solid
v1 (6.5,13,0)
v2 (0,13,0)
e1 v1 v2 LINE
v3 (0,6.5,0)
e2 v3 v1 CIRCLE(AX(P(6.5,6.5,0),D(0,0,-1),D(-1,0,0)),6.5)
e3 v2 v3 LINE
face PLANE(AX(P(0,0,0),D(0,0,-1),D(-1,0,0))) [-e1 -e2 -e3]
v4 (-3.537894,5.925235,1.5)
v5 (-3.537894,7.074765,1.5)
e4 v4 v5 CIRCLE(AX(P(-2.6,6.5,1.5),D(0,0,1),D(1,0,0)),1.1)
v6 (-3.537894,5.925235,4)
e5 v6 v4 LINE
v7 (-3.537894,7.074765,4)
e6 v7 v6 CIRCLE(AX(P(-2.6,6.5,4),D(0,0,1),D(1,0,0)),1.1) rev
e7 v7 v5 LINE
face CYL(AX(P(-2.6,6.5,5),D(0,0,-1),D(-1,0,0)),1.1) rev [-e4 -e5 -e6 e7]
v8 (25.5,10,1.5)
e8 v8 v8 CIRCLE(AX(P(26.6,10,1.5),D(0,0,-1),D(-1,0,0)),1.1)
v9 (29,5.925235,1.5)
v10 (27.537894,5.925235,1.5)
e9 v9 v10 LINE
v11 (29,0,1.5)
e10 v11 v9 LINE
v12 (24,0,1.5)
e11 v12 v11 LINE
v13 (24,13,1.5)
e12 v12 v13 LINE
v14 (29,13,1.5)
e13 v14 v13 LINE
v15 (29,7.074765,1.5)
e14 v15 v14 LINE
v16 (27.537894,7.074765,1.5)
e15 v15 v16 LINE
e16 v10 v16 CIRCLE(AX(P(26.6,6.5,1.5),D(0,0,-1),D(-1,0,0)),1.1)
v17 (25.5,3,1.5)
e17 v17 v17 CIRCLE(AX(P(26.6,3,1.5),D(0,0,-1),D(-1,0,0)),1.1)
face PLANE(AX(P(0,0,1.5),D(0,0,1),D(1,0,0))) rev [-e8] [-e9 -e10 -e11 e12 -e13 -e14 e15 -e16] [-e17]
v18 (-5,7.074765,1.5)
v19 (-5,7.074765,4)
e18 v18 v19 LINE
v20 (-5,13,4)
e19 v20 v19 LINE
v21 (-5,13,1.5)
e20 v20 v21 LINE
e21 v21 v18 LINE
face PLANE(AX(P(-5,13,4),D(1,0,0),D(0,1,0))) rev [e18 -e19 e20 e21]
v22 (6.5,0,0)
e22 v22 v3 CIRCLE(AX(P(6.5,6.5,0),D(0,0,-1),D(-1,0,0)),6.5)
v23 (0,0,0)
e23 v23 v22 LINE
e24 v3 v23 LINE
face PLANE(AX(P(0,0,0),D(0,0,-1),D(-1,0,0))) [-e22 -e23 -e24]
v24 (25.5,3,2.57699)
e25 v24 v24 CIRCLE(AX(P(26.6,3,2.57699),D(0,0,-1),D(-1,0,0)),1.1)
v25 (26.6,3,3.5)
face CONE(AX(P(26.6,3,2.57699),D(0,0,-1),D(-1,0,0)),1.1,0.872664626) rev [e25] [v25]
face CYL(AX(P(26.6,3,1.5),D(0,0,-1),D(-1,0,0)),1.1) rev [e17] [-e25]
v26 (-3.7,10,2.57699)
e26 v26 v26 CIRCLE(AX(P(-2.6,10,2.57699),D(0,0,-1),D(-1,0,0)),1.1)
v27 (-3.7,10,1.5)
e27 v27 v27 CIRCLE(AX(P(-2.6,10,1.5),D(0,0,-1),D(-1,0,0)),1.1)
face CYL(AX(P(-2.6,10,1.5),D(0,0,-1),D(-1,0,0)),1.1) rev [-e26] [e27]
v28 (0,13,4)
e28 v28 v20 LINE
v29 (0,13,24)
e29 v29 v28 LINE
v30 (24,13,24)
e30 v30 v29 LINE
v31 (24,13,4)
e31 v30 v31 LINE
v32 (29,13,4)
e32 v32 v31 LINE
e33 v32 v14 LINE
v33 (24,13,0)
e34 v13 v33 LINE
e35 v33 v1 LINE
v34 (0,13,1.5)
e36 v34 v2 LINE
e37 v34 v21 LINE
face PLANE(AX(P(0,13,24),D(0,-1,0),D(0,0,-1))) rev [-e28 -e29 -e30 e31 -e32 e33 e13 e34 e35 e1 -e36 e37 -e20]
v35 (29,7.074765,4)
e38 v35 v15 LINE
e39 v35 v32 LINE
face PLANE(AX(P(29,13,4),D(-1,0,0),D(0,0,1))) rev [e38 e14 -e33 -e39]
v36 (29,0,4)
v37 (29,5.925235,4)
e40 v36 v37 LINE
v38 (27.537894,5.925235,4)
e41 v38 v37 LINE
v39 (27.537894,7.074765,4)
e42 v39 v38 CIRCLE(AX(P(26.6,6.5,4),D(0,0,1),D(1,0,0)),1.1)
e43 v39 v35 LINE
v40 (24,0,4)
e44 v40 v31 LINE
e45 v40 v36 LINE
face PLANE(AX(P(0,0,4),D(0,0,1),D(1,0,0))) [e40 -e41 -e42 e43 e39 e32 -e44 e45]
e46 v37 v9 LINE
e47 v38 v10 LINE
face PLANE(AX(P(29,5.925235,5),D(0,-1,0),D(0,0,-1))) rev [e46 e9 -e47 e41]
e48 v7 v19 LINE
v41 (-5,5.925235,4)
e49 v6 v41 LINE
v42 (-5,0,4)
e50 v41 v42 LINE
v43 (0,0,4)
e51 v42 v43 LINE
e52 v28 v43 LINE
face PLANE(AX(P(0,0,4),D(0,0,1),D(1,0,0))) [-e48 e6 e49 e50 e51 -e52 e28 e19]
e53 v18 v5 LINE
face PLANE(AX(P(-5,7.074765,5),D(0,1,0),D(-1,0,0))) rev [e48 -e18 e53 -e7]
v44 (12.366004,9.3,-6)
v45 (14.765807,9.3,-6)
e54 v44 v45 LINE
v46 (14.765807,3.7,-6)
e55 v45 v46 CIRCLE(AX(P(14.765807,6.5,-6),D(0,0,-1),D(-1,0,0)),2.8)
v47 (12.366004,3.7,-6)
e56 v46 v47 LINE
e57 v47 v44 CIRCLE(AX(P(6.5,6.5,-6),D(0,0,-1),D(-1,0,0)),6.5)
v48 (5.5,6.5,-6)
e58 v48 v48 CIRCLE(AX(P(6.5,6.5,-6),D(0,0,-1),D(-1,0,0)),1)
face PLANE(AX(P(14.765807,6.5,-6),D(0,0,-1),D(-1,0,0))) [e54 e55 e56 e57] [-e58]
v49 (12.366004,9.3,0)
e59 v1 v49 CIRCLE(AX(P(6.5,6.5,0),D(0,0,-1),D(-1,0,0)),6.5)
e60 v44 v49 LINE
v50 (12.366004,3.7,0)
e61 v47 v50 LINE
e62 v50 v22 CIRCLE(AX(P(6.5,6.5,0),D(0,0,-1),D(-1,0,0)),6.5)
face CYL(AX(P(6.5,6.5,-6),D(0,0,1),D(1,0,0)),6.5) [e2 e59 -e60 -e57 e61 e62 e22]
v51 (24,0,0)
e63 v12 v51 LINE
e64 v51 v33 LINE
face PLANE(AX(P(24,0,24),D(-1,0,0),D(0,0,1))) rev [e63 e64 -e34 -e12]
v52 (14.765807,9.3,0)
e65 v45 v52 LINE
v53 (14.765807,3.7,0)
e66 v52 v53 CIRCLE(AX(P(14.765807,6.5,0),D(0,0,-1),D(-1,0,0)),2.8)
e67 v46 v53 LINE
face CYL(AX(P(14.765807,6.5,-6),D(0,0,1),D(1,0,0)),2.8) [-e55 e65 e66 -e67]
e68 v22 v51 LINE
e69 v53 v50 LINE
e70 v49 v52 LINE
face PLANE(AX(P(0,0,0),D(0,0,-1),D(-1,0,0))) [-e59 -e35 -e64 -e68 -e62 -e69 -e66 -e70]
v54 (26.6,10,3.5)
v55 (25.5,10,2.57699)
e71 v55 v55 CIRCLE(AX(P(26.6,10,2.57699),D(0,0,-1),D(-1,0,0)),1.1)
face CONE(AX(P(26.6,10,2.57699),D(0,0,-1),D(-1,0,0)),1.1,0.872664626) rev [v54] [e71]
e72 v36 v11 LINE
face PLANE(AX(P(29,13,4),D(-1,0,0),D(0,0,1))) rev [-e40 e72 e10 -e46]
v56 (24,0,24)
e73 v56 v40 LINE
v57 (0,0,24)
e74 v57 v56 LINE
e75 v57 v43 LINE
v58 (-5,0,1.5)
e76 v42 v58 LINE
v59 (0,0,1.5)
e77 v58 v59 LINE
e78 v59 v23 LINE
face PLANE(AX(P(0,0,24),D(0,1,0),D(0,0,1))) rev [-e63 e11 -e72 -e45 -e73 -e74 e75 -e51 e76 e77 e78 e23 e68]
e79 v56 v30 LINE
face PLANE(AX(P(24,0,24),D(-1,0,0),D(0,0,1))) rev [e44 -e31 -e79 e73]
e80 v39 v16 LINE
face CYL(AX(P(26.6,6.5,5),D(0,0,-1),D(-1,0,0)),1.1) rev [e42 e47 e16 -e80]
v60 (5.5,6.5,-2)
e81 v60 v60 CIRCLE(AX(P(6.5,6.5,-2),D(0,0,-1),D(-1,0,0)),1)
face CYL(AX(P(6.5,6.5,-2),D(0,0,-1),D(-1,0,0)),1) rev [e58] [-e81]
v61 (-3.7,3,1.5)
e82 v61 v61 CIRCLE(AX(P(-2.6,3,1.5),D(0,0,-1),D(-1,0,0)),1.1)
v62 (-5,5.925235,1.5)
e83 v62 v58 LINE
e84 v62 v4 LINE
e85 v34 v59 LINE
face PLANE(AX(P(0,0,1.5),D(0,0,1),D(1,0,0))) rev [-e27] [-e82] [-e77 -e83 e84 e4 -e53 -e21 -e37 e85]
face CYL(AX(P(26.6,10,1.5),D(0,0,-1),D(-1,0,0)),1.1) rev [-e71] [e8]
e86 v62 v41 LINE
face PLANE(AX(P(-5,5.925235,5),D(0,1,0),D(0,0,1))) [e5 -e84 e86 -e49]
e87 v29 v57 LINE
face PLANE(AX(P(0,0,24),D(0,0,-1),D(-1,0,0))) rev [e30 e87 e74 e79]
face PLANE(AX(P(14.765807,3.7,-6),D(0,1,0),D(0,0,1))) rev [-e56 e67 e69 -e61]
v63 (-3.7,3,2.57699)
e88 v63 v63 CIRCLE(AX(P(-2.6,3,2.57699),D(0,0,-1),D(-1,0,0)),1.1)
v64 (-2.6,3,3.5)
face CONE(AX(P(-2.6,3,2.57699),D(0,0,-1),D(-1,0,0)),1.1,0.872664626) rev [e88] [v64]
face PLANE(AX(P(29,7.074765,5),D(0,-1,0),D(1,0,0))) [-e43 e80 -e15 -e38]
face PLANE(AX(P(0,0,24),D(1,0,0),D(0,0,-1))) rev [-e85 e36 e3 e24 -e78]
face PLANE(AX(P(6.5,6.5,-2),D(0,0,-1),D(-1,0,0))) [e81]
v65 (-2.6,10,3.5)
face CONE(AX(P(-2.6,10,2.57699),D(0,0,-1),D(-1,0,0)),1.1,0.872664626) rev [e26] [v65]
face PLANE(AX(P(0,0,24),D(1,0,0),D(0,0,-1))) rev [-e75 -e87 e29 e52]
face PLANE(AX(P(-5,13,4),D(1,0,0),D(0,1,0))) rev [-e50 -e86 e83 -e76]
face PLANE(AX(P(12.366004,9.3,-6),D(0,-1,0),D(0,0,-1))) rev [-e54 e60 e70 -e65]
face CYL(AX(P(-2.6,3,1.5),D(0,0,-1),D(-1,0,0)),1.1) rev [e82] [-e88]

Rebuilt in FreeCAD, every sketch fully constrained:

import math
import FreeCAD as App
import Part
import Sketcher

V = App.Vector


def add_polygon(sketch, points):
    """Adds a closed chain of lines whose ends are joined by coincident constraints."""
    first, n = sketch.GeometryCount, len(points)
    for a, b in zip(points, points[1:] + points[:1]):
        sketch.addGeometry(Part.LineSegment(App.Vector(*a, 0), App.Vector(*b, 0)), False)
    for i in range(n):
        sketch.addConstraint(Sketcher.Constraint("Coincident", first + i, 2, first + (i + 1) % n, 1))

doc = App.newDocument("Part")
body = doc.addObject("PartDesign::Body", "Body")

# Sketch on XY plane
sketch1 = doc.addObject("Sketcher::SketchObject", "Sketch")
body.addObject(sketch1)
sketch1.AttachmentSupport = (doc.XY_Plane, [""])
sketch1.MapMode = "FlatFace"
add_polygon(sketch1, [(0, 13), (0, 0), (24, 0), (24, 13)])  # lines 0-3
sketch1.addConstraint([
    Sketcher.Constraint("Vertical", 0),
    Sketcher.Constraint("Horizontal", 1),
    Sketcher.Constraint("Vertical", 2),
    Sketcher.Constraint("Horizontal", 3),
    Sketcher.Constraint("Coincident", 0, 2, -1, 1),
    Sketcher.Constraint("DistanceX", 1, 1, 1, 2, 24.0),
    Sketcher.Constraint("DistanceY", 0, 2, 0, 1, 13.0),
])
pad1 = doc.addObject("PartDesign::Pad", "Pad")
body.addObject(pad1)
pad1.Profile = sketch1
pad1.Length = 24

# Sketch on XY plane
sketch2 = doc.addObject("Sketcher::SketchObject", "Sketch001")
body.addObject(sketch2)
sketch2.AttachmentSupport = (doc.XY_Plane, [""])
sketch2.MapMode = "FlatFace"
sketch2.AttachmentOffset = App.Placement(V(0, 0, 1.5), App.Rotation())
add_polygon(sketch2, [(-5, 13), (-5, 0), (29, 0), (29, 13)])  # lines 0-3
sketch2.addConstraint([
    Sketcher.Constraint("Vertical", 0),
    Sketcher.Constraint("Horizontal", 1),
    Sketcher.Constraint("Vertical", 2),
    Sketcher.Constraint("Horizontal", 3),
    Sketcher.Constraint("PointOnObject", 0, 2, -1),
    Sketcher.Constraint("DistanceX", 1, 1, 1, 2, 34.0),
    Sketcher.Constraint("DistanceY", 0, 2, 0, 1, 13.0),
    Sketcher.Constraint("DistanceX", 0, 2, -1, 1, 5.0),
])
pad2 = doc.addObject("PartDesign::Pad", "Pad001")
body.addObject(pad2)
pad2.Profile = sketch2
pad2.Length = 2.5

# Sketch on XY plane
sketch3 = doc.addObject("Sketcher::SketchObject", "Sketch002")
body.addObject(sketch3)
sketch3.AttachmentSupport = (doc.XY_Plane, [""])
sketch3.MapMode = "FlatFace"
sketch3.AttachmentOffset = App.Placement(V(0, 0, 1.5), App.Rotation())
sketch3.addGeometry([
    Part.Circle(V(-2.6, 10, 0), V(0, 0, 1), 1.1),
    Part.Circle(V(-2.6, 3, 0), V(0, 0, 1), 1.1),
    Part.Circle(V(26.6, 10, 0), V(0, 0, 1), 1.1),
    Part.Circle(V(26.6, 3, 0), V(0, 0, 1), 1.1),
], False)
sketch3.addConstraint([
    Sketcher.Constraint("Equal", 0, 1),
    Sketcher.Constraint("Equal", 1, 2),
    Sketcher.Constraint("Equal", 2, 3),
    Sketcher.Constraint("Horizontal", 0, 3, 2, 3),
    Sketcher.Constraint("Horizontal", 1, 3, 3, 3),
    Sketcher.Constraint("Vertical", 0, 3, 1, 3),
    Sketcher.Constraint("Vertical", 2, 3, 3, 3),
    Sketcher.Constraint("Diameter", 0, 2.2),
    Sketcher.Constraint("DistanceY", -1, 1, 0, 3, 10.0),
    Sketcher.Constraint("DistanceY", -1, 1, 1, 3, 3.0),
    Sketcher.Constraint("DistanceX", 0, 3, -1, 1, 2.6),
    Sketcher.Constraint("DistanceX", -1, 1, 2, 3, 26.6),
])
doc.recompute()
hole = doc.addObject("PartDesign::Hole", "Hole")
body.addObject(hole)
hole.Profile = sketch3
hole.ThreadType = "None"
hole.Diameter = 2.2
hole.DepthType = "Dimension"
hole.Depth = 1.07699
hole.DrillPoint = "Angled"
hole.DrillPointAngle = 100
hole.Reversed = True

# Sketch on XY plane
sketch4 = doc.addObject("Sketcher::SketchObject", "Sketch003")
body.addObject(sketch4)
sketch4.AttachmentSupport = (doc.XY_Plane, [""])
sketch4.MapMode = "FlatFace"
sketch4.AttachmentOffset = App.Placement(V(0, 0, 1.5), App.Rotation())
sketch4.addGeometry([
    Part.LineSegment(V(-3.5, 7.1, 0), V(-5, 7.1, 0)),  # 0
    Part.LineSegment(V(-5, 7.1, 0), V(-5, 5.9, 0)),  # 1
    Part.LineSegment(V(-5, 5.9, 0), V(-3.5, 5.9, 0)),  # 2
    Part.ArcOfCircle(Part.Circle(V(-2.6, 6.5, 0), V(0, 0, 1), 1.1), math.radians(-148), math.radians(148)),  # 3
    Part.LineSegment(V(27.5, 5.9, 0), V(29, 5.9, 0)),  # 4
    Part.LineSegment(V(29, 5.9, 0), V(29, 7.1, 0)),  # 5
    Part.LineSegment(V(29, 7.1, 0), V(27.5, 7.1, 0)),  # 6
    Part.ArcOfCircle(Part.Circle(V(26.6, 6.5, 0), V(0, 0, 1), 1.1), math.radians(32), math.radians(328)),  # 7
], False)
sketch4.addConstraint([
    Sketcher.Constraint("Coincident", 0, 2, 1, 1),
    Sketcher.Constraint("Coincident", 1, 2, 2, 1),
    Sketcher.Constraint("Coincident", 2, 2, 3, 1),
    Sketcher.Constraint("Coincident", 3, 2, 0, 1),
    Sketcher.Constraint("Coincident", 4, 2, 5, 1),
    Sketcher.Constraint("Coincident", 5, 2, 6, 1),
    Sketcher.Constraint("Coincident", 6, 2, 7, 1),
    Sketcher.Constraint("Coincident", 7, 2, 4, 1),
    Sketcher.Constraint("Horizontal", 0),
    Sketcher.Constraint("Vertical", 1),
    Sketcher.Constraint("Horizontal", 2),
    Sketcher.Constraint("Horizontal", 4),
    Sketcher.Constraint("Vertical", 5),
    Sketcher.Constraint("Horizontal", 6),
    Sketcher.Constraint("Equal", 3, 7),
    Sketcher.Constraint("Horizontal", 3, 3, 7, 3),
    Sketcher.Constraint("Horizontal", 2, 2, 4, 2),
    Sketcher.Constraint("Horizontal", 3, 2, 5, 2),
    Sketcher.Constraint("Vertical", 2, 2, 3, 2),
    Sketcher.Constraint("Equal", 2, 4),
    Sketcher.Constraint("Radius", 3, 1.1),
    Sketcher.Constraint("DistanceX", 0, 2, -1, 1, 5.0),
    Sketcher.Constraint("DistanceX", -1, 1, 4, 2, 29.0),
    Sketcher.Constraint("DistanceX", 3, 3, -1, 1, 2.6),
    Sketcher.Constraint("DistanceY", -1, 1, 3, 3, 6.5),
    Sketcher.Constraint("DistanceY", 1, 2, 1, 1, 1.149529),
])
pocket1 = doc.addObject("PartDesign::Pocket", "Pocket")
body.addObject(pocket1)
pocket1.Profile = sketch4
pocket1.Length = 3.5
pocket1.Reversed = True

# Sketch on XY plane
sketch5 = doc.addObject("Sketcher::SketchObject", "Sketch004")
body.addObject(sketch5)
sketch5.AttachmentSupport = (doc.XY_Plane, [""])
sketch5.MapMode = "FlatFace"
sketch5.addGeometry([
    Part.LineSegment(V(14.8, 3.7, 0), V(12.4, 3.7, 0)),
    Part.ArcOfCircle(Part.Circle(V(6.5, 6.5, 0), V(0, 0, 1), 6.5), math.radians(26), math.radians(334)),
    Part.LineSegment(V(12.4, 9.3, 0), V(14.8, 9.3, 0)),
    Part.ArcOfCircle(Part.Circle(V(14.8, 6.5, 0), V(0, 0, 1), 2.8), math.radians(-90), math.radians(90)),
], False)
sketch5.addConstraint([
    Sketcher.Constraint("Coincident", 0, 2, 1, 2),
    Sketcher.Constraint("Coincident", 1, 1, 2, 1),
    Sketcher.Constraint("Tangent", 2, 2, 3, 2),
    Sketcher.Constraint("Tangent", 3, 1, 0, 1),
    Sketcher.Constraint("Horizontal", 0),
    Sketcher.Constraint("Horizontal", 2),
    Sketcher.Constraint("Horizontal", 1, 3, 3, 3),
    Sketcher.Constraint("Radius", 1, 6.5),
    Sketcher.Constraint("Radius", 3, 2.8),
    Sketcher.Constraint("DistanceX", -1, 1, 1, 3, 6.5),
    Sketcher.Constraint("DistanceY", -1, 1, 1, 3, 6.5),
    Sketcher.Constraint("DistanceX", 0, 2, 0, 1, 2.399804),
])
pad3 = doc.addObject("PartDesign::Pad", "Pad002")
body.addObject(pad3)
pad3.Profile = sketch5
pad3.Length = 6
pad3.Reversed = True

# Sketch on XY plane
sketch6 = doc.addObject("Sketcher::SketchObject", "Sketch005")
body.addObject(sketch6)
sketch6.AttachmentSupport = (doc.XY_Plane, [""])
sketch6.MapMode = "FlatFace"
sketch6.AttachmentOffset = App.Placement(V(0, 0, -6), App.Rotation())
sketch6.addGeometry(Part.Circle(V(6.5, 6.5, 0), V(0, 0, 1), 1), False)
sketch6.addConstraint([
    Sketcher.Constraint("Diameter", 0, 2.0),
    Sketcher.Constraint("DistanceX", -1, 1, 0, 3, 6.5),
    Sketcher.Constraint("DistanceY", -1, 1, 0, 3, 6.5),
])
pocket2 = doc.addObject("PartDesign::Pocket", "Pocket001")
body.addObject(pocket2)
pocket2.Profile = sketch6
pocket2.Length = 4
pocket2.Reversed = True

doc.recompute()
